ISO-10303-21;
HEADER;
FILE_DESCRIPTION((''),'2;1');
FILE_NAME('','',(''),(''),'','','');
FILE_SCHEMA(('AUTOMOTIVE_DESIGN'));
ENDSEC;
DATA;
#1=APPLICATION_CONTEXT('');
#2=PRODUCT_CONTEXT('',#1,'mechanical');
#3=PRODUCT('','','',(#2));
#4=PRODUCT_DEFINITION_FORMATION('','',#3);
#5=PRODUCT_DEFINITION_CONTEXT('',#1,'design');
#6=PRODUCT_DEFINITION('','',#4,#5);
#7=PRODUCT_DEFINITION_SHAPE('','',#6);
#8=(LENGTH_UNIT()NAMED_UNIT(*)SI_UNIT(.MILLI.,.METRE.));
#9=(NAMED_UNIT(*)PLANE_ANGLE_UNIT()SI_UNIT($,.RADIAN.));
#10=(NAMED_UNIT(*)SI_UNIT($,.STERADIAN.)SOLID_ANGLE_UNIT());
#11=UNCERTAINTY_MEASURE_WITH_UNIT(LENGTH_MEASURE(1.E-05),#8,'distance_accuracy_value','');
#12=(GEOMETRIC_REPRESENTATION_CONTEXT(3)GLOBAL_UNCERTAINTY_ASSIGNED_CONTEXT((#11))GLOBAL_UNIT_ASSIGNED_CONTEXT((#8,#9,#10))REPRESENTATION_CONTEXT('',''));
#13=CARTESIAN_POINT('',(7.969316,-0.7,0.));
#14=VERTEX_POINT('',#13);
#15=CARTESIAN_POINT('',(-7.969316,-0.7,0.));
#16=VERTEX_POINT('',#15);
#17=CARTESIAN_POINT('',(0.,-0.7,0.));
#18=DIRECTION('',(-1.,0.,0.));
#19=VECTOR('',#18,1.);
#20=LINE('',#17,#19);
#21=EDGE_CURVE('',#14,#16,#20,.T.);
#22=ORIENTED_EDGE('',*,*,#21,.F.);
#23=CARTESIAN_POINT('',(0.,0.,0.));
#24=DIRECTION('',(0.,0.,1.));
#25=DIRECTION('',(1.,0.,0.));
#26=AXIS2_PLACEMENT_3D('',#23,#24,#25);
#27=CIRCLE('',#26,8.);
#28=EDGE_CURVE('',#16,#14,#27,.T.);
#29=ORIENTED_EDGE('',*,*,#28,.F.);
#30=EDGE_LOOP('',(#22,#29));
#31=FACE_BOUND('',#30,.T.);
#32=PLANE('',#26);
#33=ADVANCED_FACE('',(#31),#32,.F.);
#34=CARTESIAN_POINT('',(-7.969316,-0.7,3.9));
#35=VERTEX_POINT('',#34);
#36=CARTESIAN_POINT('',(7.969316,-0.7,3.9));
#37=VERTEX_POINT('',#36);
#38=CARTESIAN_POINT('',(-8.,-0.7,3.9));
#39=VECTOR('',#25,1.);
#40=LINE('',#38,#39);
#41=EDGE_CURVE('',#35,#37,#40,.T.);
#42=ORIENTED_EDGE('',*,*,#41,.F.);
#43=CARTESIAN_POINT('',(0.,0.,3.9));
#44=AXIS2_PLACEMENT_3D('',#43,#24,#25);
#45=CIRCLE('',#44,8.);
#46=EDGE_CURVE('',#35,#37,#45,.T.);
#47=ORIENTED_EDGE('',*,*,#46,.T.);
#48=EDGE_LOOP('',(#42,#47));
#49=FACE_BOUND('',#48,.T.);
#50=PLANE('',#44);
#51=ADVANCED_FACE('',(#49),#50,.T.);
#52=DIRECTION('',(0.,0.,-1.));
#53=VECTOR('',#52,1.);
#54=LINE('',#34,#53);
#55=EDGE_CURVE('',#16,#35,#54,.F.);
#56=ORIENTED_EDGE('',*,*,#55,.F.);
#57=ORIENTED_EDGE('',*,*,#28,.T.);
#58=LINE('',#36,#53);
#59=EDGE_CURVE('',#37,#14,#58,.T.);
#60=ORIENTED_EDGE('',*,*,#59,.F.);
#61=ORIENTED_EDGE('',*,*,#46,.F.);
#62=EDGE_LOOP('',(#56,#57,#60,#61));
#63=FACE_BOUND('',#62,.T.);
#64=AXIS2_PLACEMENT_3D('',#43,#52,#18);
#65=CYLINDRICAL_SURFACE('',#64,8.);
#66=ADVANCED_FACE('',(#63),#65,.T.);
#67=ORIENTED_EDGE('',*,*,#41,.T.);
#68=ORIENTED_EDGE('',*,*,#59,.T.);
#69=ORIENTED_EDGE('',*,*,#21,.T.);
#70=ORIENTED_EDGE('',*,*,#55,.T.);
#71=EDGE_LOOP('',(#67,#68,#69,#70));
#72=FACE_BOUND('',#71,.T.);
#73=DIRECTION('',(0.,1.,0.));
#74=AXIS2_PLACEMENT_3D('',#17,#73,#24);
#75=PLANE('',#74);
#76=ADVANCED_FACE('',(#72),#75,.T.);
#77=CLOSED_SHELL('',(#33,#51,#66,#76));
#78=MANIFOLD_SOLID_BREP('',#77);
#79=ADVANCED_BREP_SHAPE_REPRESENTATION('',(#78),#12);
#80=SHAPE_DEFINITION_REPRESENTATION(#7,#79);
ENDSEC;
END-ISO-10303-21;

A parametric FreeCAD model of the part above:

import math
import FreeCAD as App
import Part
import Sketcher
Q = App.Units.Quantity


def add_polygon(sketch, points):
    """Adds a closed chain of lines whose ends are joined by coincident constraints."""
    first, n = sketch.GeometryCount, len(points)
    for a, b in zip(points, points[1:] + points[:1]):
        sketch.addGeometry(Part.LineSegment(App.Vector(*a, 0), App.Vector(*b, 0)), False)
    for i in range(n):
        sketch.addConstraint(Sketcher.Constraint("Coincident", first + i, 2, first + (i + 1) % n, 1))

doc = App.newDocument("Part")
params = doc.addObject("Spreadsheet::Sheet", "Params")
for row, (alias, value) in enumerate([
    ("sketch1_radius", "8 mm"),
    ("pad1_length", "3.9 mm"),
    ("sketch2_width", "16 mm"),
    ("sketch2_height", "3.9 mm"),
    ("pocket1_length", "0.7 mm"),
], start=1):
    params.set(f"A{row}", alias)
    params.set(f"B{row}", "=" + value)
    params.setAlias(f"B{row}", alias)

body = doc.addObject("PartDesign::Body", "Body")

# Sketch on XY plane
sketch1 = doc.addObject("Sketcher::SketchObject", "Sketch")
body.addObject(sketch1)
sketch1.AttachmentSupport = (doc.XY_Plane, [""])
sketch1.MapMode = "FlatFace"
sketch1.addGeometry(Part.LineSegment(App.Vector(8, 0, 0), App.Vector(-8, 0, 0)), False)
sketch1.addGeometry(Part.ArcOfCircle(Part.Circle(App.Vector(0, 0, 0), App.Vector(0, 0, 1), 8), math.radians(180), math.radians(360)), False)
sketch1.addConstraint(Sketcher.Constraint("Coincident", 0, 1, 1, 2))
sketch1.addConstraint(Sketcher.Constraint("Coincident", 1, 1, 0, 2))
sketch1.addConstraint(Sketcher.Constraint("Horizontal", 0))
sketch1.addConstraint(Sketcher.Constraint("Coincident", 1, 3, -1, 1))
sketch1.addConstraint(Sketcher.Constraint("PointOnObject", 0, 1, -1))
sketch1.addConstraint(Sketcher.Constraint("Radius", 1, Q("8 mm")))
sketch1.setExpression("Constraints[5]", "Params.sketch1_radius")
pad1 = doc.addObject("PartDesign::Pad", "Pad")
body.addObject(pad1)
pad1.Profile = sketch1
pad1.setExpression("Length", "Params.pad1_length")

# Sketch on XZ plane
sketch2 = doc.addObject("Sketcher::SketchObject", "Sketch001")
body.addObject(sketch2)
sketch2.AttachmentSupport = (doc.XZ_Plane, [""])
sketch2.MapMode = "FlatFace"
add_polygon(sketch2, [(-8, 0), (-8, 3.9), (8, 3.9), (8, 0)])  # lines 0-3
sketch2.addConstraint(Sketcher.Constraint("Vertical", 0))
sketch2.addConstraint(Sketcher.Constraint("Horizontal", 1))
sketch2.addConstraint(Sketcher.Constraint("Vertical", 2))
sketch2.addConstraint(Sketcher.Constraint("Horizontal", 3))
sketch2.addConstraint(Sketcher.Constraint("Symmetric", 2, 2, 3, 2, -1, 1))
sketch2.addConstraint(Sketcher.Constraint("DistanceX", 1, 1, 1, 2, Q("16 mm")))
sketch2.addConstraint(Sketcher.Constraint("DistanceY", 0, 1, 0, 2, Q("3.9 mm")))
sketch2.setExpression("Constraints[9]", "Params.sketch2_width")
sketch2.setExpression("Constraints[10]", "Params.sketch2_height")
pocket1 = doc.addObject("PartDesign::Pocket", "Pocket")
body.addObject(pocket1)
pocket1.Profile = sketch2
pocket1.setExpression("Length", "Params.pocket1_length")
pocket1.Reversed = True

doc.recompute()
